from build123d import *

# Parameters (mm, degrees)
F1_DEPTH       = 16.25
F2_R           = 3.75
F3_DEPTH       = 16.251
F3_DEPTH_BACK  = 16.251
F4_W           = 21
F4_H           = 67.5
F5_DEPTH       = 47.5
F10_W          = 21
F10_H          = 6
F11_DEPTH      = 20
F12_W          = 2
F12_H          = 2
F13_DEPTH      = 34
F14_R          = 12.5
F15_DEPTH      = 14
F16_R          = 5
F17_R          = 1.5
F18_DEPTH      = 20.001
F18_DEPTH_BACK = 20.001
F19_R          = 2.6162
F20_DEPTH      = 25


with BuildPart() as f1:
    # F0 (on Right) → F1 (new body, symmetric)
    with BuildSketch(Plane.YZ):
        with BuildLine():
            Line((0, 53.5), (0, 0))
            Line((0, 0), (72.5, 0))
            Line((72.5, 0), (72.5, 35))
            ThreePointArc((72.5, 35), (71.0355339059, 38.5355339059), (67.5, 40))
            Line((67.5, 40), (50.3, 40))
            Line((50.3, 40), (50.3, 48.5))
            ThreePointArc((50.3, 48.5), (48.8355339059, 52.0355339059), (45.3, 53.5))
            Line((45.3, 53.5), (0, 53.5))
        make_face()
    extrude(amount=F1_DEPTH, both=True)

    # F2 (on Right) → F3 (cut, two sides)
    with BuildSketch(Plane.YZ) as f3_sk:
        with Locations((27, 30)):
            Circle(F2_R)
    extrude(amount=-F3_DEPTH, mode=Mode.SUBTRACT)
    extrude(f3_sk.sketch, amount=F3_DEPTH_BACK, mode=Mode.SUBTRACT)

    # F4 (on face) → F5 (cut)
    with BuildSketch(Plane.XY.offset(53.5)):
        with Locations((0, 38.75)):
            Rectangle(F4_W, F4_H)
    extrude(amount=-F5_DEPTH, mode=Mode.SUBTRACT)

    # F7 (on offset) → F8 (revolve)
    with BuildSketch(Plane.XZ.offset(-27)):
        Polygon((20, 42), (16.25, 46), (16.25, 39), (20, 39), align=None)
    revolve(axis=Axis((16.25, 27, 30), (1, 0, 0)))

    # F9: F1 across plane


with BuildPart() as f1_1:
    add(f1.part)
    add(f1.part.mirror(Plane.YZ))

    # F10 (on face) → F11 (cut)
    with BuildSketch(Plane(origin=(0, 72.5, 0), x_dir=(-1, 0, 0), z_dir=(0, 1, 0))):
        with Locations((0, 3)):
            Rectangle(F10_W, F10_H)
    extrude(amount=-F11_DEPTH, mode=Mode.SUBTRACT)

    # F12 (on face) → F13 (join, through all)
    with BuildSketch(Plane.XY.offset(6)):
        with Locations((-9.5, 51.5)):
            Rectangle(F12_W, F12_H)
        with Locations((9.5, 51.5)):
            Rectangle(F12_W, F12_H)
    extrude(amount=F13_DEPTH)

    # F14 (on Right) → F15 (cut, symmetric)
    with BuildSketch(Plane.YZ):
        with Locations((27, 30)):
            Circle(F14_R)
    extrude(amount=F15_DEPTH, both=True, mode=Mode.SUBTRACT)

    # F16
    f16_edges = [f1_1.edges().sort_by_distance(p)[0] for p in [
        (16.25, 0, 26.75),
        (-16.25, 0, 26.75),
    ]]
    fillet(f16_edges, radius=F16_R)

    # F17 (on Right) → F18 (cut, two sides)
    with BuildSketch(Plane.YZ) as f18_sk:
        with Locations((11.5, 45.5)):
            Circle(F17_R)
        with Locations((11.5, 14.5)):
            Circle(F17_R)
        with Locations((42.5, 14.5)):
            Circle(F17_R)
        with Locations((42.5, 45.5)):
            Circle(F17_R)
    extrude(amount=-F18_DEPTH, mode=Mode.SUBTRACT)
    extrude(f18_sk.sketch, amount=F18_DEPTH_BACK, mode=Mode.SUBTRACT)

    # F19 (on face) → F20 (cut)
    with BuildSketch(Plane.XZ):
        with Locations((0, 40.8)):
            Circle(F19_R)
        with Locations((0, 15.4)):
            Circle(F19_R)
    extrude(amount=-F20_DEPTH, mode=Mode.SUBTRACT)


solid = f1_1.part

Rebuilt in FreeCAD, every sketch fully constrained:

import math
import FreeCAD as App
import Part
import Sketcher
from FreeCAD import Vector


def edges_at(feature, points):
    """Names of the edges that pass closest to the given points."""
    edges = feature.Shape.Edges
    near = lambda p: min(range(len(edges)), key=lambda i: edges[i].distToShape(Part.Vertex(*p))[0])
    return sorted({f"Edge{near(p) + 1}" for p in points})

doc = App.newDocument("Part")
body = doc.addObject("PartDesign::Body", "Body")

# Sketch on YZ plane
sketch1 = body.newObject("Sketcher::SketchObject", "Sketch")
sketch1.AttachmentSupport = (doc.getObject("YZ_Plane"), [""])
sketch1.MapMode = "FlatFace"
sketch1.addGeometry([
    Part.LineSegment(Vector(0, 53.5, 0), Vector(0, 0, 0)),  # 0
    Part.LineSegment(Vector(0, 0, 0), Vector(72.5, 0, 0)),  # 1
    Part.LineSegment(Vector(72.5, 0, 0), Vector(72.5, 35, 0)),  # 2
    Part.ArcOfCircle(Part.Circle(Vector(67.5, 35, 0), Vector(0, 0, 1), 5), math.radians(0), math.radians(90)),  # 3
    Part.LineSegment(Vector(67.5, 40, 0), Vector(50.3, 40, 0)),  # 4
    Part.LineSegment(Vector(50.3, 40, 0), Vector(50.3, 48.5, 0)),  # 5
    Part.ArcOfCircle(Part.Circle(Vector(45.3, 48.5, 0), Vector(0, 0, 1), 5), math.radians(0), math.radians(90)),  # 6
    Part.LineSegment(Vector(45.3, 53.5, 0), Vector(0, 53.5, 0)),  # 7
], False)
sketch1.addConstraint([
    Sketcher.Constraint("Coincident", 0, 2, 1, 1),
    Sketcher.Constraint("Coincident", 1, 2, 2, 1),
    Sketcher.Constraint("Tangent", 2, 2, 3, 1),
    Sketcher.Constraint("Tangent", 3, 2, 4, 1),
    Sketcher.Constraint("Coincident", 4, 2, 5, 1),
    Sketcher.Constraint("Tangent", 5, 2, 6, 1),
    Sketcher.Constraint("Tangent", 6, 2, 7, 1),
    Sketcher.Constraint("Coincident", 7, 2, 0, 1),
    Sketcher.Constraint("Vertical", 0),
    Sketcher.Constraint("Horizontal", 1),
    Sketcher.Constraint("Vertical", 2),
    Sketcher.Constraint("Horizontal", 4),
    Sketcher.Constraint("Vertical", 5),
    Sketcher.Constraint("Horizontal", 7),
    Sketcher.Constraint("Coincident", 0, 2, -1, 1),
    Sketcher.Constraint("Equal", 3, 6),
    Sketcher.Constraint("Radius", 3, 5.0),
    Sketcher.Constraint("DistanceY", 2, 1, 2, 2, 35.0),
    Sketcher.Constraint("DistanceX", 1, 1, 1, 2, 72.5),
    Sketcher.Constraint("DistanceX", 4, 2, 4, 1, 17.2),
    Sketcher.Constraint("DistanceY", 0, 2, 0, 1, 53.5),
])
pad1 = body.newObject("PartDesign::Pad", "Pad")
pad1.Profile = sketch1
pad1.Length = 32.5
pad1.Midplane = True

# Sketch on YZ plane
sketch2 = body.newObject("Sketcher::SketchObject", "Sketch001")
sketch2.AttachmentSupport = (doc.getObject("YZ_Plane"), [""])
sketch2.MapMode = "FlatFace"
sketch2.addGeometry(Part.Circle(Vector(27, 30, 0), Vector(0, 0, 1), 3.75), False)
sketch2.addConstraint([
    Sketcher.Constraint("Diameter", 0, 7.5),
    Sketcher.Constraint("DistanceX", -1, 1, 0, 3, 27.0),
    Sketcher.Constraint("DistanceY", -1, 1, 0, 3, 30.0),
])
pocket1 = body.newObject("PartDesign::Pocket", "Pocket")
pocket1.Profile = sketch2
pocket1.Type = "ThroughAll"
pocket1.Midplane = True

# Sketch on XY plane
sketch3 = body.newObject("Sketcher::SketchObject", "Sketch002")
sketch3.AttachmentSupport = (doc.getObject("XY_Plane"), [""])
sketch3.MapMode = "FlatFace"
sketch3.AttachmentOffset = App.Placement(Vector(0, 0, 53.5), App.Rotation())
sketch3.addGeometry([
    Part.LineSegment(Vector(-10.5, 72.5, 0), Vector(-10.5, 5, 0)),
    Part.LineSegment(Vector(-10.5, 5, 0), Vector(10.5, 5, 0)),
    Part.LineSegment(Vector(10.5, 5, 0), Vector(10.5, 72.5, 0)),
    Part.LineSegment(Vector(10.5, 72.5, 0), Vector(-10.5, 72.5, 0)),
], False)
sketch3.addConstraint([
    Sketcher.Constraint("Coincident", 0, 2, 1, 1),
    Sketcher.Constraint("Coincident", 1, 2, 2, 1),
    Sketcher.Constraint("Coincident", 2, 2, 3, 1),
    Sketcher.Constraint("Coincident", 3, 2, 0, 1),
    Sketcher.Constraint("Vertical", 0),
    Sketcher.Constraint("Horizontal", 1),
    Sketcher.Constraint("Vertical", 2),
    Sketcher.Constraint("Horizontal", 3),
    Sketcher.Constraint("DistanceX", 1, 1, 1, 2, 21.0),
    Sketcher.Constraint("DistanceY", 0, 2, 0, 1, 67.5),
    Sketcher.Constraint("DistanceY", -1, 1, 0, 2, 5.0),
    Sketcher.Constraint("DistanceX", 0, 2, -1, 1, 10.5),
])
pocket2 = body.newObject("PartDesign::Pocket", "Pocket001")
pocket2.Profile = sketch3
pocket2.Length = 47.5

# Sketch on XZ plane
sketch4 = body.newObject("Sketcher::SketchObject", "Sketch003")
sketch4.AttachmentSupport = (doc.getObject("XZ_Plane"), [""])
sketch4.MapMode = "FlatFace"
sketch4.AttachmentOffset = App.Placement(Vector(0, 0, -27), App.Rotation())
sketch4.addGeometry([
    Part.LineSegment(Vector(20, 42, 0), Vector(16.25, 46, 0)),
    Part.LineSegment(Vector(16.25, 46, 0), Vector(16.25, 39, 0)),
    Part.LineSegment(Vector(16.25, 39, 0), Vector(20, 39, 0)),
    Part.LineSegment(Vector(20, 39, 0), Vector(20, 42, 0)),
], False)
sketch4.addGeometry(Part.LineSegment(Vector(16.25, 30, 0), Vector(20, 30, 0)), True)  # axis
sketch4.addConstraint([
    Sketcher.Constraint("Coincident", 0, 2, 1, 1),
    Sketcher.Constraint("Coincident", 1, 2, 2, 1),
    Sketcher.Constraint("Coincident", 2, 2, 3, 1),
    Sketcher.Constraint("Coincident", 3, 2, 0, 1),
    Sketcher.Constraint("Vertical", 1),
    Sketcher.Constraint("Horizontal", 2),
    Sketcher.Constraint("Vertical", 3),
    Sketcher.Constraint("Horizontal", 4),
    Sketcher.Constraint("Vertical", 1, 2, 4, 1),
    Sketcher.Constraint("Vertical", 3, 2, 4, 2),
    Sketcher.Constraint("DistanceY", 1, 2, 1, 1, 7.0),
    Sketcher.Constraint("DistanceY", 3, 1, 3, 2, 3.0),
    Sketcher.Constraint("DistanceY", -1, 1, 0, 2, 46.0),
    Sketcher.Constraint("DistanceX", -1, 1, 2, 2, 20.0),
    Sketcher.Constraint("DistanceY", -1, 1, 4, 1, 30.0),
    Sketcher.Constraint("DistanceX", 2, 1, 2, 2, 3.75),
])
revolution = body.newObject("PartDesign::Revolution", "Revolution")
revolution.Profile = sketch4
revolution.ReferenceAxis = (sketch4, ["Axis0"])
revolution.Angle = 360
body2 = doc.addObject("PartDesign::Body", "Body001")
doc.recompute()

body2.BaseFeature = body
doc.recompute()

mirroring = doc.addObject("Part::Mirroring", "Mirroring")
mirroring.Source = body
mirroring.Base = Vector(0, 0, 0)
mirroring.Normal = Vector(1, 0, 0)
body3 = doc.addObject("PartDesign::Body", "Body002")
body3.BaseFeature = mirroring
boolean = body2.newObject("PartDesign::Boolean", "Boolean")
boolean.Type = "Fuse"
boolean.addObjects([body3])
doc.recompute()

# Sketch on XZ plane
sketch5 = body2.newObject("Sketcher::SketchObject", "Sketch004")
sketch5.AttachmentSupport = (doc.getObject("XZ_Plane001"), [""])
sketch5.MapMode = "FlatFace"
sketch5.AttachmentOffset = App.Placement(Vector(0, 0, -72.5), App.Rotation())
sketch5.addGeometry([
    Part.LineSegment(Vector(10.5, 6, 0), Vector(10.5, 0, 0)),
    Part.LineSegment(Vector(10.5, 0, 0), Vector(-10.5, 0, 0)),
    Part.LineSegment(Vector(-10.5, 0, 0), Vector(-10.5, 6, 0)),
    Part.LineSegment(Vector(-10.5, 6, 0), Vector(10.5, 6, 0)),
], False)
sketch5.addConstraint([
    Sketcher.Constraint("Coincident", 0, 2, 1, 1),
    Sketcher.Constraint("Coincident", 1, 2, 2, 1),
    Sketcher.Constraint("Coincident", 2, 2, 3, 1),
    Sketcher.Constraint("Coincident", 3, 2, 0, 1),
    Sketcher.Constraint("Vertical", 0),
    Sketcher.Constraint("Horizontal", 1),
    Sketcher.Constraint("Vertical", 2),
    Sketcher.Constraint("Horizontal", 3),
    Sketcher.Constraint("Symmetric", 0, 2, 1, 2, -1, 1),
    Sketcher.Constraint("DistanceX", 1, 2, 1, 1, 21.0),
    Sketcher.Constraint("DistanceY", 0, 2, 0, 1, 6.0),
])
pocket3 = body2.newObject("PartDesign::Pocket", "Pocket002")
pocket3.Profile = sketch5
pocket3.Length = 20
pocket3.Reversed = True

# Sketch on XY plane
sketch6 = body2.newObject("Sketcher::SketchObject", "Sketch005")
sketch6.AttachmentSupport = (doc.getObject("XY_Plane001"), [""])
sketch6.MapMode = "FlatFace"
sketch6.AttachmentOffset = App.Placement(Vector(0, 0, 6), App.Rotation())
sketch6.addGeometry([
    Part.LineSegment(Vector(-10.5, 52.5, 0), Vector(-10.5, 50.5, 0)),  # 0
    Part.LineSegment(Vector(-10.5, 50.5, 0), Vector(-8.5, 50.5, 0)),  # 1
    Part.LineSegment(Vector(-8.5, 50.5, 0), Vector(-8.5, 52.5, 0)),  # 2
    Part.LineSegment(Vector(-8.5, 52.5, 0), Vector(-10.5, 52.5, 0)),  # 3
    Part.LineSegment(Vector(8.5, 52.5, 0), Vector(8.5, 50.5, 0)),  # 4
    Part.LineSegment(Vector(8.5, 50.5, 0), Vector(10.5, 50.5, 0)),  # 5
    Part.LineSegment(Vector(10.5, 50.5, 0), Vector(10.5, 52.5, 0)),  # 6
    Part.LineSegment(Vector(10.5, 52.5, 0), Vector(8.5, 52.5, 0)),  # 7
], False)
sketch6.addConstraint([
    Sketcher.Constraint("Coincident", 0, 2, 1, 1),
    Sketcher.Constraint("Coincident", 1, 2, 2, 1),
    Sketcher.Constraint("Coincident", 2, 2, 3, 1),
    Sketcher.Constraint("Coincident", 3, 2, 0, 1),
    Sketcher.Constraint("Coincident", 4, 2, 5, 1),
    Sketcher.Constraint("Coincident", 5, 2, 6, 1),
    Sketcher.Constraint("Coincident", 6, 2, 7, 1),
    Sketcher.Constraint("Coincident", 7, 2, 4, 1),
    Sketcher.Constraint("Vertical", 0),
    Sketcher.Constraint("Horizontal", 1),
    Sketcher.Constraint("Vertical", 2),
    Sketcher.Constraint("Horizontal", 3),
    Sketcher.Constraint("Vertical", 4),
    Sketcher.Constraint("Horizontal", 5),
    Sketcher.Constraint("Vertical", 6),
    Sketcher.Constraint("Horizontal", 7),
    Sketcher.Constraint("Symmetric", 1, 2, 4, 2, -2),
    Sketcher.Constraint("Symmetric", 3, 2, 6, 2, -2),
    Sketcher.Constraint("Equal", 7, 0),
    Sketcher.Constraint("DistanceX", 1, 1, 1, 2, 2.0),
    Sketcher.Constraint("DistanceX", 1, 2, 4, 2, 17.0),
    Sketcher.Constraint("DistanceY", -1, 1, 0, 2, 50.5),
])
pad2 = body2.newObject("PartDesign::Pad", "Pad001")
pad2.Profile = sketch6
pad2.Length = 34

# Sketch on YZ plane
sketch7 = body2.newObject("Sketcher::SketchObject", "Sketch006")
sketch7.AttachmentSupport = (doc.getObject("YZ_Plane001"), [""])
sketch7.MapMode = "FlatFace"
sketch7.addGeometry(Part.Circle(Vector(27, 30, 0), Vector(0, 0, 1), 12.5), False)
sketch7.addConstraint([
    Sketcher.Constraint("Diameter", 0, 25.0),
    Sketcher.Constraint("DistanceX", -1, 1, 0, 3, 27.0),
    Sketcher.Constraint("DistanceY", -1, 1, 0, 3, 30.0),
])
pocket4 = body2.newObject("PartDesign::Pocket", "Pocket003")
pocket4.Profile = sketch7
pocket4.Length = 28
pocket4.Midplane = True
doc.recompute()

fillet = body2.newObject("PartDesign::Fillet", "Fillet")
fillet.Base = (pocket4, edges_at(pocket4, [(16.25, 0, 26.75), (-16.25, 0, 26.75)]))
fillet.Radius = 5

# Sketch on YZ plane
sketch8 = body2.newObject("Sketcher::SketchObject", "Sketch007")
sketch8.AttachmentSupport = (doc.getObject("YZ_Plane001"), [""])
sketch8.MapMode = "FlatFace"
sketch8.addGeometry([
    Part.Circle(Vector(11.5, 45.5, 0), Vector(0, 0, 1), 1.5),
    Part.Circle(Vector(11.5, 14.5, 0), Vector(0, 0, 1), 1.5),
    Part.Circle(Vector(42.5, 14.5, 0), Vector(0, 0, 1), 1.5),
    Part.Circle(Vector(42.5, 45.5, 0), Vector(0, 0, 1), 1.5),
], False)
sketch8.addConstraint([
    Sketcher.Constraint("Equal", 0, 1),
    Sketcher.Constraint("Equal", 1, 2),
    Sketcher.Constraint("Equal", 2, 3),
    Sketcher.Constraint("Horizontal", 1, 3, 2, 3),
    Sketcher.Constraint("Horizontal", 0, 3, 3, 3),
    Sketcher.Constraint("Vertical", 0, 3, 1, 3),
    Sketcher.Constraint("Vertical", 2, 3, 3, 3),
    Sketcher.Constraint("Diameter", 0, 3.0),
    Sketcher.Constraint("DistanceY", 1, 3, 0, 3, 31.0),
    Sketcher.Constraint("DistanceX", 1, 3, 2, 3, 31.0),
    Sketcher.Constraint("DistanceX", -1, 1, 0, 3, 11.5),
    Sketcher.Constraint("DistanceY", -1, 1, 0, 3, 45.5),
])
pocket5 = body2.newObject("PartDesign::Pocket", "Pocket004")
pocket5.Profile = sketch8
pocket5.Type = "ThroughAll"
pocket5.Midplane = True

# Sketch on XZ plane
sketch9 = body2.newObject("Sketcher::SketchObject", "Sketch008")
sketch9.AttachmentSupport = (doc.getObject("XZ_Plane001"), [""])
sketch9.MapMode = "FlatFace"
sketch9.addGeometry([
    Part.Circle(Vector(0, 40.8, 0), Vector(0, 0, 1), 2.6162),
    Part.Circle(Vector(0, 15.4, 0), Vector(0, 0, 1), 2.6162),
], False)
sketch9.addConstraint([
    Sketcher.Constraint("Equal", 0, 1),
    Sketcher.Constraint("PointOnObject", 0, 3, -2),
    Sketcher.Constraint("PointOnObject", 1, 3, -2),
    Sketcher.Constraint("Diameter", 0, 5.2324),
    Sketcher.Constraint("DistanceY", -1, 1, 0, 3, 40.8),
    Sketcher.Constraint("DistanceY", -1, 1, 1, 3, 15.4),
])
pocket6 = body2.newObject("PartDesign::Pocket", "Pocket005")
pocket6.Profile = sketch9
pocket6.Length = 25
mirroring.Visibility = False

doc.recompute()
